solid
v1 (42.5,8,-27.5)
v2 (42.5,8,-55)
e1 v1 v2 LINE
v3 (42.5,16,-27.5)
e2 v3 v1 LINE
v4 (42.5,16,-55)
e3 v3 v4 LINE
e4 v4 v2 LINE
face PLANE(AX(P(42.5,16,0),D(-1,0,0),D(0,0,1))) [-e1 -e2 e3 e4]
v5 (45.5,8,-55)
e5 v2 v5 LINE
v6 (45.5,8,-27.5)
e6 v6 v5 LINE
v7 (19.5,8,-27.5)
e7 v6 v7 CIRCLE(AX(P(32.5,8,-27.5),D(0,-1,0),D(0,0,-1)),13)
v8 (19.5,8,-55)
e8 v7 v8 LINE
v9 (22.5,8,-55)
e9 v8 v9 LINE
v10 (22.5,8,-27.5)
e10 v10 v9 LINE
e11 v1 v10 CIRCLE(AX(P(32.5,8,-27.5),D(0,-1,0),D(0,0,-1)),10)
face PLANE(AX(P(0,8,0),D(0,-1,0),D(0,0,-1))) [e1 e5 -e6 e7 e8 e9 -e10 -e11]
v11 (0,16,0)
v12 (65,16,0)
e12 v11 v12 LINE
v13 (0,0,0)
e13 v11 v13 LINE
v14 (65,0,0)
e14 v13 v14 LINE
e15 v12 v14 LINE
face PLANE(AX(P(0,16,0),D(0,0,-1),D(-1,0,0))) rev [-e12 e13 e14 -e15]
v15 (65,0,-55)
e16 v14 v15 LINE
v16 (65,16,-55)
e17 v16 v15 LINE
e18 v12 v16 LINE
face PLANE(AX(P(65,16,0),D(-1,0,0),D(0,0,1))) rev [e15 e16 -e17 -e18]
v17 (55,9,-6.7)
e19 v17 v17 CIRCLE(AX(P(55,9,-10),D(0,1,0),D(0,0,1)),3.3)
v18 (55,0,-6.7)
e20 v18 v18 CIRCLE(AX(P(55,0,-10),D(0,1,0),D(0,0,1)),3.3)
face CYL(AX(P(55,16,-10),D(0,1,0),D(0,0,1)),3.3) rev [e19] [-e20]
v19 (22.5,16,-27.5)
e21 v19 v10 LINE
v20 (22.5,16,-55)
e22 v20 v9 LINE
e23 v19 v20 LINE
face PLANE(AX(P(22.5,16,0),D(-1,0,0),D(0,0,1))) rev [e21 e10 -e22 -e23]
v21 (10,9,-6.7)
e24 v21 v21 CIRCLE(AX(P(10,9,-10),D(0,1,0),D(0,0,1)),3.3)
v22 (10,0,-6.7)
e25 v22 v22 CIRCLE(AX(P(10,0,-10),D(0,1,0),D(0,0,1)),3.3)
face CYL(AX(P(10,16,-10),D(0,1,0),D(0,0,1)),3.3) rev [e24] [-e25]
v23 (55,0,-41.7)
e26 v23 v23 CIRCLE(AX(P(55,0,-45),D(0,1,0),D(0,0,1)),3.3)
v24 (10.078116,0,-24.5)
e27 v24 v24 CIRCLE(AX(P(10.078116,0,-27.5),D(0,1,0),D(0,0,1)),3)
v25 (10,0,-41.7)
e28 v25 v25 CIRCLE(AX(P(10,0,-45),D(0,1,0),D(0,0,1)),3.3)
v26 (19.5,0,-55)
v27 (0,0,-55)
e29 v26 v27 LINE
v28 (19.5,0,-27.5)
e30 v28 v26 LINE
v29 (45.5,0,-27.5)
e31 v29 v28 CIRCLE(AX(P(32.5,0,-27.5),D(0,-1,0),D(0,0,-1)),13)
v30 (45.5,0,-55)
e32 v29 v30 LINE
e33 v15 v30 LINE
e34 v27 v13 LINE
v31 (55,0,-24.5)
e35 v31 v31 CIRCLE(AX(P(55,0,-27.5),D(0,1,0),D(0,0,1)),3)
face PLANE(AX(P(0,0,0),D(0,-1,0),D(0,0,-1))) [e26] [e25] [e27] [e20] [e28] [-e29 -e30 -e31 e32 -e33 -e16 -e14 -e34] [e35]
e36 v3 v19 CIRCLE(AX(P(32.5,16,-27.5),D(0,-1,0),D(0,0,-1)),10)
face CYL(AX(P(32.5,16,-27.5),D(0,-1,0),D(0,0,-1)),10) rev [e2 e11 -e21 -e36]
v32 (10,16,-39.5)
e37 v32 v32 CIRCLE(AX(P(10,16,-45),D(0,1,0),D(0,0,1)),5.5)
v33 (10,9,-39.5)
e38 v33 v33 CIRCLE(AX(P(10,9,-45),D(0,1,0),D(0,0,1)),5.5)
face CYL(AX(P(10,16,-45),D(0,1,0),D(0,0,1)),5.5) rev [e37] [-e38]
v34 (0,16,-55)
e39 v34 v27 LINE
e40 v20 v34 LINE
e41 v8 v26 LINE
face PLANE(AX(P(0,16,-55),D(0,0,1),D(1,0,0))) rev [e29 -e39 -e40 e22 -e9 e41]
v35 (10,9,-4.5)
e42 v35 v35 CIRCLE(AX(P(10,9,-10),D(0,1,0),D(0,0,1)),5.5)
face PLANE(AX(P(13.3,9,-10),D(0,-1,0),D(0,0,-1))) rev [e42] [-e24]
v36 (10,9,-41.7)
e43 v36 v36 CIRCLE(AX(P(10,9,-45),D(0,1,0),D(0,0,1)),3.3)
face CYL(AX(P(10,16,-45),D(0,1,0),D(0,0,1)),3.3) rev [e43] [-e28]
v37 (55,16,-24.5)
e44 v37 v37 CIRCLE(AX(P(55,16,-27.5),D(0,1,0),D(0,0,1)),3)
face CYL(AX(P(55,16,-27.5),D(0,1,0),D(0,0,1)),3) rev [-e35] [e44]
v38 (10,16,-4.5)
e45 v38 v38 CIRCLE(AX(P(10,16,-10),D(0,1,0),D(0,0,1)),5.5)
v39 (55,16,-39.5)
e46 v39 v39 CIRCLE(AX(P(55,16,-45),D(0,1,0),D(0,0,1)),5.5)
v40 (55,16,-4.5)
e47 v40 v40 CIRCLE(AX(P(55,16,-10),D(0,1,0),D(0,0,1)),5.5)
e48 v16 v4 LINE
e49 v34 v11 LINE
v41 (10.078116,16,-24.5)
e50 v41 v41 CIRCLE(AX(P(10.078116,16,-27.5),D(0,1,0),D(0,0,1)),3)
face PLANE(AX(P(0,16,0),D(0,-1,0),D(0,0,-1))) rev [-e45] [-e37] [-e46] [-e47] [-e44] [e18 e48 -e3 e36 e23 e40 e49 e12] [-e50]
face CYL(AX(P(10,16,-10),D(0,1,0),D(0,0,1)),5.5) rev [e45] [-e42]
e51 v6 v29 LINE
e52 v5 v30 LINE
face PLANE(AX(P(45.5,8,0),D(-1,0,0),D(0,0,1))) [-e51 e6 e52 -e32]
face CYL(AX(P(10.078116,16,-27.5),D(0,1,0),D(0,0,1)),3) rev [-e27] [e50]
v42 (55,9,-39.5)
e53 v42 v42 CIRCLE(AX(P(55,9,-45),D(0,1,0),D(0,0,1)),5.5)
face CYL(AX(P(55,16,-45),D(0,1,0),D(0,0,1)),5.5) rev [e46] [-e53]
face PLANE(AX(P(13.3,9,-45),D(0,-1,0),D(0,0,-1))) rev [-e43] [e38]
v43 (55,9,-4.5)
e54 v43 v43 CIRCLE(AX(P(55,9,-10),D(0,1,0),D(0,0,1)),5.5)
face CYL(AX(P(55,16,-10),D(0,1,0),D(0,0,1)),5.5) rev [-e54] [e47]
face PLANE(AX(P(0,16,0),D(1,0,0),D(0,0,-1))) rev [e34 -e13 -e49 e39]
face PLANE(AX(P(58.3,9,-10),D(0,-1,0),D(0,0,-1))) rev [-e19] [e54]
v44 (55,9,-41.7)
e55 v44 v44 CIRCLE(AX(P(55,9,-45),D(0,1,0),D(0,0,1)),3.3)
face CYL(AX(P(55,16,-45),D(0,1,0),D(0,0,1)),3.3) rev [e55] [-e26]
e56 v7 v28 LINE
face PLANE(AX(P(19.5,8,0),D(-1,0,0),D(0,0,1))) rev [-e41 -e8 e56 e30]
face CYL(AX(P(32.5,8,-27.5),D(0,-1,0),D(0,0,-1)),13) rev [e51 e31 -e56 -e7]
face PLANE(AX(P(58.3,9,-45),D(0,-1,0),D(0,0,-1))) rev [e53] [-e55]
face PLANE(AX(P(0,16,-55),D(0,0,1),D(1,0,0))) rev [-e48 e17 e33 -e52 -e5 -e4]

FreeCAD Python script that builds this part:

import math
import FreeCAD as App
import Part
import Sketcher

V = App.Vector

doc = App.newDocument("Part")
params = doc.addObject("Spreadsheet::Sheet", "Params")
for row, (alias, value) in enumerate([
    ("sketch1_width", "65 mm"),
    ("sketch1_height", "55 mm"),
    ("pad1_length", "16 mm"),
    ("sketch2_diameter", "6.6 mm"),
    ("hole_diameter", "6.6 mm"),
    ("hole_cbore_diameter", "11 mm"),
    ("hole_cbore_depth", "7 mm"),
    ("sketch3_diameter", "6 mm"),
    ("hole2_diameter", "6 mm"),
    ("sketch4_radius", "13 mm"),
    ("sketch4_height", "27.5 mm"),
    ("pocket1_length", "8 mm"),
    ("sketch5_radius", "10 mm"),
    ("sketch5_height", "27.5 mm"),
], start=1):
    params.set(f"A{row}", alias)
    params.set(f"B{row}", "=" + value)
    params.setAlias(f"B{row}", alias)

body = doc.addObject("PartDesign::Body", "Body")

# Sketch on XZ plane
sketch1 = body.newObject("Sketcher::SketchObject", "Sketch")
sketch1.AttachmentSupport = (doc.getObject("XZ_Plane"), [""])
sketch1.MapMode = "FlatFace"
sketch1.addGeometry([
    Part.LineSegment(V(0, -55, 0), V(0, 0, 0)),
    Part.LineSegment(V(0, 0, 0), V(65, 0, 0)),
    Part.LineSegment(V(65, 0, 0), V(65, -55, 0)),
    Part.LineSegment(V(65, -55, 0), V(0, -55, 0)),
], False)
sketch1.addConstraint([
    Sketcher.Constraint("Coincident", 0, 2, 1, 1),
    Sketcher.Constraint("Coincident", 1, 2, 2, 1),
    Sketcher.Constraint("Coincident", 2, 2, 3, 1),
    Sketcher.Constraint("Coincident", 3, 2, 0, 1),
    Sketcher.Constraint("Vertical", 0),
    Sketcher.Constraint("Horizontal", 1),
    Sketcher.Constraint("Vertical", 2),
    Sketcher.Constraint("Horizontal", 3),
    Sketcher.Constraint("Coincident", 0, 2, -1, 1),
    Sketcher.Constraint("DistanceX", 1, 1, 1, 2, 65.0),
    Sketcher.Constraint("DistanceY", 0, 1, 0, 2, 55.0),
])
sketch1.setExpression("Constraints[9]", "Params.sketch1_width")
sketch1.setExpression("Constraints[10]", "Params.sketch1_height")
pad1 = body.newObject("PartDesign::Pad", "Pad")
pad1.Profile = sketch1
pad1.setExpression("Length", "Params.pad1_length")
pad1.Reversed = True

# Sketch on XZ plane
sketch2 = body.newObject("Sketcher::SketchObject", "Sketch001")
sketch2.AttachmentSupport = (doc.getObject("XZ_Plane"), [""])
sketch2.MapMode = "FlatFace"
sketch2.AttachmentOffset = App.Placement(V(0, 0, -16), App.Rotation())
sketch2.addGeometry([
    Part.Circle(V(10, -45, 0), V(0, 0, 1), 3.3),
    Part.Circle(V(55, -45, 0), V(0, 0, 1), 3.3),
    Part.Circle(V(55, -10, 0), V(0, 0, 1), 3.3),
    Part.Circle(V(10, -10, 0), V(0, 0, 1), 3.3),
], False)
sketch2.addConstraint([
    Sketcher.Constraint("Equal", 0, 1),
    Sketcher.Constraint("Equal", 1, 2),
    Sketcher.Constraint("Equal", 2, 3),
    Sketcher.Constraint("Horizontal", 0, 3, 1, 3),
    Sketcher.Constraint("Horizontal", 2, 3, 3, 3),
    Sketcher.Constraint("Vertical", 1, 3, 2, 3),
    Sketcher.Constraint("Vertical", 0, 3, 3, 3),
    Sketcher.Constraint("Diameter", 0, 6.6),
    Sketcher.Constraint("DistanceX", -1, 1, 0, 3, 10.0),
    Sketcher.Constraint("DistanceY", 0, 3, -1, 1, 45.0),
    Sketcher.Constraint("DistanceX", -1, 1, 1, 3, 55.0),
    Sketcher.Constraint("DistanceY", 2, 3, -1, 1, 10.0),
])
sketch2.setExpression("Constraints[7]", "Params.sketch2_diameter")
doc.recompute()
hole = body.newObject("PartDesign::Hole", "Hole")
hole.Profile = sketch2
hole.ThreadType = "None"
hole.setExpression("Diameter", "Params.hole_diameter")
hole.DepthType = "ThroughAll"
hole.HoleCutType = "Counterbore"
hole.setExpression("HoleCutDiameter", "Params.hole_cbore_diameter")
hole.setExpression("HoleCutDepth", "Params.hole_cbore_depth")
hole.Reversed = True

# Sketch on XZ plane
sketch3 = body.newObject("Sketcher::SketchObject", "Sketch002")
sketch3.AttachmentSupport = (doc.getObject("XZ_Plane"), [""])
sketch3.MapMode = "FlatFace"
sketch3.AttachmentOffset = App.Placement(V(0, 0, -16), App.Rotation())
sketch3.addGeometry([
    Part.Circle(V(10.1, -27.5, 0), V(0, 0, 1), 3),
    Part.Circle(V(55, -27.5, 0), V(0, 0, 1), 3),
], False)
sketch3.addConstraint([
    Sketcher.Constraint("Equal", 0, 1),
    Sketcher.Constraint("Horizontal", 0, 3, 1, 3),
    Sketcher.Constraint("Diameter", 0, 6.0),
    Sketcher.Constraint("DistanceX", -1, 1, 1, 3, 55.0),
    Sketcher.Constraint("DistanceY", 0, 3, -1, 1, 27.5),
    Sketcher.Constraint("DistanceX", -1, 1, 0, 3, 10.078116),
])
sketch3.setExpression("Constraints[2]", "Params.sketch3_diameter")
doc.recompute()
hole2 = body.newObject("PartDesign::Hole", "Hole001")
hole2.Profile = sketch3
hole2.ThreadType = "None"
hole2.setExpression("Diameter", "Params.hole2_diameter")
hole2.DepthType = "ThroughAll"
hole2.Reversed = True

# Sketch on XZ plane
sketch4 = body.newObject("Sketcher::SketchObject", "Sketch003")
sketch4.AttachmentSupport = (doc.getObject("XZ_Plane"), [""])
sketch4.MapMode = "FlatFace"
sketch4.addGeometry([
    Part.LineSegment(V(20, -28, 0), V(20, -55, 0)),
    Part.LineSegment(V(20, -55, 0), V(46, -55, 0)),
    Part.LineSegment(V(46, -55, 0), V(46, -28, 0)),
    Part.ArcOfCircle(Part.Circle(V(32, -28, 0), V(0, 0, 1), 13), math.radians(0), math.radians(180)),
], False)
sketch4.addConstraint([
    Sketcher.Constraint("Coincident", 0, 2, 1, 1),
    Sketcher.Constraint("Coincident", 1, 2, 2, 1),
    Sketcher.Constraint("Tangent", 2, 2, 3, 1),
    Sketcher.Constraint("Tangent", 3, 2, 0, 1),
    Sketcher.Constraint("Vertical", 0),
    Sketcher.Constraint("Horizontal", 1),
    Sketcher.Constraint("Vertical", 2),
    Sketcher.Constraint("Radius", 3, 13.0),
    Sketcher.Constraint("DistanceY", 0, 2, 0, 1, 27.5),
    Sketcher.Constraint("DistanceY", 0, 2, -1, 1, 55.0),
    Sketcher.Constraint("DistanceX", -1, 1, 3, 3, 32.5),
])
sketch4.setExpression("Constraints[7]", "Params.sketch4_radius")
sketch4.setExpression("Constraints[8]", "Params.sketch4_height")
pocket1 = body.newObject("PartDesign::Pocket", "Pocket")
pocket1.Profile = sketch4
pocket1.setExpression("Length", "Params.pocket1_length")

# Sketch on XZ plane
sketch5 = body.newObject("Sketcher::SketchObject", "Sketch004")
sketch5.AttachmentSupport = (doc.getObject("XZ_Plane"), [""])
sketch5.MapMode = "FlatFace"
sketch5.AttachmentOffset = App.Placement(V(0, 0, -8), App.Rotation())
sketch5.addGeometry([
    Part.ArcOfCircle(Part.Circle(V(32, -28, 0), V(0, 0, 1), 10), math.radians(0), math.radians(180)),
    Part.LineSegment(V(22, -28, 0), V(22, -55, 0)),
    Part.LineSegment(V(22, -55, 0), V(42, -55, 0)),
    Part.LineSegment(V(42, -55, 0), V(42, -28, 0)),
], False)
sketch5.addConstraint([
    Sketcher.Constraint("Tangent", 0, 2, 1, 1),
    Sketcher.Constraint("Coincident", 1, 2, 2, 1),
    Sketcher.Constraint("Coincident", 2, 2, 3, 1),
    Sketcher.Constraint("Tangent", 3, 2, 0, 1),
    Sketcher.Constraint("Vertical", 1),
    Sketcher.Constraint("Horizontal", 2),
    Sketcher.Constraint("Vertical", 3),
    Sketcher.Constraint("Radius", 0, 10.0),
    Sketcher.Constraint("DistanceY", 1, 2, 1, 1, 27.5),
    Sketcher.Constraint("DistanceY", 1, 2, -1, 1, 55.0),
    Sketcher.Constraint("DistanceX", -1, 1, 0, 3, 32.5),
])
sketch5.setExpression("Constraints[7]", "Params.sketch5_radius")
sketch5.setExpression("Constraints[8]", "Params.sketch5_height")
pocket2 = body.newObject("PartDesign::Pocket", "Pocket001")
pocket2.Profile = sketch5
pocket2.Type = "ThroughAll"

doc.recompute()
